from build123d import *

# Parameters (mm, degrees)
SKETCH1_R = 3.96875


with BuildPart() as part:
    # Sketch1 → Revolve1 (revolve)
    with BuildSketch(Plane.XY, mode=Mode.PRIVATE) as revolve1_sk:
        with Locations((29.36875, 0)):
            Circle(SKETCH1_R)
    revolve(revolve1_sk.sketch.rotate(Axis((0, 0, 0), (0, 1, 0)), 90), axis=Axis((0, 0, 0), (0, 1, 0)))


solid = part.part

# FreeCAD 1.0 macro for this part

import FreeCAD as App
import Part
import Sketcher

V = App.Vector
Q = App.Units.Quantity

doc = App.newDocument("Part")
params = doc.addObject("Spreadsheet::Sheet", "Params")
for row, (alias, value) in enumerate([
    ("sketch1_diameter", "0.3125 in"),
    ("revolution_angle", "360 deg"),
], start=1):
    params.set(f"A{row}", alias)
    params.set(f"B{row}", "=" + value)
    params.setAlias(f"B{row}", alias)

body = doc.addObject("PartDesign::Body", "Body")

# Sketch on XY plane
sketch1 = body.newObject("Sketcher::SketchObject", "Sketch")
sketch1.AttachmentSupport = (doc.getObject("XY_Plane"), [""])
sketch1.MapMode = "FlatFace"
sketch1.addGeometry(Part.Circle(V(29.4, 0, 0), V(0, 0, 1), 4), False)
sketch1.addConstraint([
    Sketcher.Constraint("PointOnObject", 0, 3, -1),
    Sketcher.Constraint("Diameter", 0, Q("0.3125 in")),
    Sketcher.Constraint("DistanceX", -1, 1, 0, 3, Q("1.15625 in")),
])
sketch1.setExpression("Constraints[1]", "Params.sketch1_diameter")
revolution = body.newObject("PartDesign::Revolution", "Revolution")
revolution.Profile = sketch1
revolution.ReferenceAxis = (sketch1, ["V_Axis"])
revolution.setExpression("Angle", "Params.revolution_angle")

doc.recompute()
